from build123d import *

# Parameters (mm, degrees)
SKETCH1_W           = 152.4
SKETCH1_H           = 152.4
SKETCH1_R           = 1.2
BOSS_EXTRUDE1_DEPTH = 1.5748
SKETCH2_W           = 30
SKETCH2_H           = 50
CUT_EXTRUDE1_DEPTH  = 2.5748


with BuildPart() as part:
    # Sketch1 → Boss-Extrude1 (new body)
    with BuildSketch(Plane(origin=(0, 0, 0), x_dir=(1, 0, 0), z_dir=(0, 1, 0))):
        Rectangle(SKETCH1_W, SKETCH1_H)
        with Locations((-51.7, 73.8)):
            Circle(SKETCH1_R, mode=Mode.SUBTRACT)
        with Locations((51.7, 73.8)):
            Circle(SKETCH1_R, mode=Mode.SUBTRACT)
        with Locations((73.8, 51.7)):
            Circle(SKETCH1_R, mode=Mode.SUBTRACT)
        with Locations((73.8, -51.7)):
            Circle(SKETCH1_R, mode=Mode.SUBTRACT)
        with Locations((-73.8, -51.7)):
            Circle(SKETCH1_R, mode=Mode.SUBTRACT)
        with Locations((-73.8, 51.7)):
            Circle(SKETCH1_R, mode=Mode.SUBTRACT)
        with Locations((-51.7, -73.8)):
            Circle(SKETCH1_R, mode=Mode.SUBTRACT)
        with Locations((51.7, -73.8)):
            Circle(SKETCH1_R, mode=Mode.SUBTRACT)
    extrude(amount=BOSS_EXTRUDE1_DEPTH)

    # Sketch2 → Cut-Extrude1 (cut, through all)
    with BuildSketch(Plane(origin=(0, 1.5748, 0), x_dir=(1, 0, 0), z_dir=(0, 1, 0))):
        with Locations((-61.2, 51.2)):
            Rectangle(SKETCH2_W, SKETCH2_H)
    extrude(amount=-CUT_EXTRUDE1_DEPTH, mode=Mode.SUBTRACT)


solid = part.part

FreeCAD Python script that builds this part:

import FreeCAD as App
import Part
import Sketcher

V = App.Vector
Q = App.Units.Quantity


def add_polygon(sketch, points):
    """Adds a closed chain of lines whose ends are joined by coincident constraints."""
    first, n = sketch.GeometryCount, len(points)
    for a, b in zip(points, points[1:] + points[:1]):
        sketch.addGeometry(Part.LineSegment(App.Vector(*a, 0), App.Vector(*b, 0)), False)
    for i in range(n):
        sketch.addConstraint(Sketcher.Constraint("Coincident", first + i, 2, first + (i + 1) % n, 1))

doc = App.newDocument("Part")
params = doc.addObject("Spreadsheet::Sheet", "Params")
for row, (alias, value) in enumerate([
    ("sketch1_diameter", "2.4 mm"),
    ("sketch1_width", "152.4 mm"),
    ("pad1_length", "1.5748 mm"),
    ("sketch2_width", "30 mm"),
    ("sketch2_height", "50 mm"),
], start=1):
    params.set(f"A{row}", alias)
    params.set(f"B{row}", "=" + value)
    params.setAlias(f"B{row}", alias)

body = doc.addObject("PartDesign::Body", "Body")

# Sketch on XZ plane
sketch1 = body.newObject("Sketcher::SketchObject", "Sketch")
sketch1.AttachmentSupport = (doc.getObject("XZ_Plane"), [""])
sketch1.MapMode = "FlatFace"
add_polygon(sketch1, [(-76.2, -76.2), (-76.2, 76.2), (76.2, 76.2), (76.2, -76.2)])  # lines 0-3
sketch1.addGeometry(Part.Circle(V(-51.7, 73.8, 0), V(0, 0, 1), 1.2), False)  # 4
sketch1.addGeometry(Part.Circle(V(-73.8, 51.7, 0), V(0, 0, 1), 1.2), False)  # 5
sketch1.addGeometry(Part.Circle(V(51.7, 73.8, 0), V(0, 0, 1), 1.2), False)  # 6
sketch1.addGeometry(Part.Circle(V(73.8, 51.7, 0), V(0, 0, 1), 1.2), False)  # 7
sketch1.addGeometry(Part.Circle(V(-73.8, -51.7, 0), V(0, 0, 1), 1.2), False)  # 8
sketch1.addGeometry(Part.Circle(V(-51.7, -73.8, 0), V(0, 0, 1), 1.2), False)  # 9
sketch1.addGeometry(Part.Circle(V(73.8, -51.7, 0), V(0, 0, 1), 1.2), False)  # 10
sketch1.addGeometry(Part.Circle(V(51.7, -73.8, 0), V(0, 0, 1), 1.2), False)  # 11
sketch1.addConstraint([
    Sketcher.Constraint("Vertical", 0),
    Sketcher.Constraint("Horizontal", 1),
    Sketcher.Constraint("Vertical", 2),
    Sketcher.Constraint("Horizontal", 3),
    Sketcher.Constraint("Equal", 4, 5),
    Sketcher.Constraint("Equal", 5, 6),
    Sketcher.Constraint("Equal", 6, 7),
    Sketcher.Constraint("Equal", 7, 8),
    Sketcher.Constraint("Equal", 8, 9),
    Sketcher.Constraint("Equal", 9, 10),
    Sketcher.Constraint("Equal", 10, 11),
    Sketcher.Constraint("Symmetric", 7, 3, 8, 3, -1, 1),
    Sketcher.Constraint("Symmetric", 6, 3, 9, 3, -1, 1),
    Sketcher.Constraint("Symmetric", 5, 3, 10, 3, -1, 1),
    Sketcher.Constraint("Symmetric", 4, 3, 11, 3, -1, 1),
    Sketcher.Constraint("Symmetric", 0, 2, 2, 2, -1, 1),
    Sketcher.Constraint("Symmetric", 4, 3, 6, 3, -2),
    Sketcher.Constraint("Symmetric", 5, 3, 7, 3, -2),
    Sketcher.Constraint("Equal", 3, 0),
    Sketcher.Constraint("Diameter", 4, Q("2.4 mm")),
    Sketcher.Constraint("DistanceX", 1, 1, 1, 2, Q("152.4 mm")),
    Sketcher.Constraint("DistanceX", 0, 2, 7, 3, Q("150 mm")),
    Sketcher.Constraint("DistanceY", 2, 2, 6, 3, Q("150 mm")),
    Sketcher.Constraint("DistanceX", 4, 3, -1, 1, Q("51.7 mm")),
    Sketcher.Constraint("DistanceY", -1, 1, 5, 3, Q("51.7 mm")),
])
sketch1.setExpression("Constraints[23]", "Params.sketch1_diameter")
sketch1.setExpression("Constraints[24]", "Params.sketch1_width")
pad1 = body.newObject("PartDesign::Pad", "Pad")
pad1.Profile = sketch1
pad1.setExpression("Length", "Params.pad1_length")
pad1.Reversed = True

# Sketch on XZ plane
sketch2 = body.newObject("Sketcher::SketchObject", "Sketch001")
sketch2.AttachmentSupport = (doc.getObject("XZ_Plane"), [""])
sketch2.MapMode = "FlatFace"
sketch2.AttachmentOffset = App.Placement(V(0, 0, -1.5748), App.Rotation())
add_polygon(sketch2, [(-76, -76), (-76, -26), (-46, -26), (-46, -76)])  # lines 0-3
sketch2.addConstraint([
    Sketcher.Constraint("Vertical", 0),
    Sketcher.Constraint("Horizontal", 1),
    Sketcher.Constraint("Vertical", 2),
    Sketcher.Constraint("Horizontal", 3),
    Sketcher.Constraint("DistanceX", 1, 1, 1, 2, Q("30 mm")),
    Sketcher.Constraint("DistanceY", 0, 1, 0, 2, Q("50 mm")),
    Sketcher.Constraint("DistanceX", 0, 2, -1, 1, Q("76.2 mm")),
    Sketcher.Constraint("DistanceY", 0, 2, -1, 1, Q("26.2 mm")),
])
sketch2.setExpression("Constraints[8]", "Params.sketch2_width")
sketch2.setExpression("Constraints[9]", "Params.sketch2_height")
pocket1 = body.newObject("PartDesign::Pocket", "Pocket")
pocket1.Profile = sketch2
pocket1.Type = "ThroughAll"
pocket1.Reversed = True

doc.recompute()
